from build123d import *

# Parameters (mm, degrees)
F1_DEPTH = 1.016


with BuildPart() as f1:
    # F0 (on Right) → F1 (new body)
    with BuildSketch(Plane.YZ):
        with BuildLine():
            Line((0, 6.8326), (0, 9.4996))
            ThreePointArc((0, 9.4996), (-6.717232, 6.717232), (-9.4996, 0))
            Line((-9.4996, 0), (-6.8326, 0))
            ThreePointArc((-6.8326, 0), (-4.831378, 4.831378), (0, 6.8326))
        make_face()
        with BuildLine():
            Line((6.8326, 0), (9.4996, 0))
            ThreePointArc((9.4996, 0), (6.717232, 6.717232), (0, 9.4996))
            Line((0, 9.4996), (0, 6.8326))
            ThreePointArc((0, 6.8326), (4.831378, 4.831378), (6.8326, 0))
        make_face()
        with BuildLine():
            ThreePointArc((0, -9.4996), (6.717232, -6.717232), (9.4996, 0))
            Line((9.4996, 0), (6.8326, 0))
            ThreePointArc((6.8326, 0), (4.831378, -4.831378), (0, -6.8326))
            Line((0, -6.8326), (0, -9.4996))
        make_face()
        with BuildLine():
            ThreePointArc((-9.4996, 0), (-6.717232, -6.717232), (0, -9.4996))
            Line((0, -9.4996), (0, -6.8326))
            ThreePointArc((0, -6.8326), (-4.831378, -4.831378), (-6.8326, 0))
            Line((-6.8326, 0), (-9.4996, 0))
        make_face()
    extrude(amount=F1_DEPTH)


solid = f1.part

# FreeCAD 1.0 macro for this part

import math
import FreeCAD as App
import Part
import Sketcher

V = App.Vector
Q = App.Units.Quantity

doc = App.newDocument("Part")
params = doc.addObject("Spreadsheet::Sheet", "Params")
for row, (alias, value) in enumerate([
    ("sketch1_radius", "0.3739999 in"),
    ("sketch1_radius2", "0.269 in"),
    ("pad1_length", "0.04 in"),
], start=1):
    params.set(f"A{row}", alias)
    params.set(f"B{row}", "=" + value)
    params.setAlias(f"B{row}", alias)

body = doc.addObject("PartDesign::Body", "Body")

sketch1 = body.newObject("Sketcher::SketchObject", "Sketch")
sketch1.AttachmentSupport = (doc.getObject("YZ_Plane"), [""])
sketch1.MapMode = "FlatFace"
sketch1.addGeometry([
    Part.ArcOfCircle(Part.Circle(V(-0.000001, 0.000001, 0), V(0, 0, 1), 9.499599), math.radians(89.999991), math.radians(180.000009)),
    Part.ArcOfCircle(Part.Circle(V(-0.000001, -0.000001, 0), V(0, 0, 1), 9.499599), math.radians(179.999991), math.radians(270.000009)),
    Part.ArcOfCircle(Part.Circle(V(0.000001, -0.000001, 0), V(0, 0, 1), 9.499599), math.radians(-90.000009), math.radians(0.000009)),
    Part.ArcOfCircle(Part.Circle(V(0.000001, 0.000001, 0), V(0, 0, 1), 9.499599), math.radians(-0.000009), math.radians(90.000009)),
    Part.ArcOfCircle(Part.Circle(V(-0.000001, 0.000001, 0), V(0, 0, 1), 6.832599), math.radians(89.999994), math.radians(180.000006)),
    Part.ArcOfCircle(Part.Circle(V(0.000001, 0.000001, 0), V(0, 0, 1), 6.832599), math.radians(-0.000006), math.radians(90.000006)),
    Part.ArcOfCircle(Part.Circle(V(0.000001, -0.000001, 0), V(0, 0, 1), 6.832599), math.radians(-90.000006), math.radians(0.000006)),
    Part.ArcOfCircle(Part.Circle(V(-0.000001, -0.000001, 0), V(0, 0, 1), 6.832599), math.radians(179.999994), math.radians(270.000006)),
], False)
sketch1.addConstraint([
    Sketcher.Constraint("Tangent", 0, 2, 1, 1),
    Sketcher.Constraint("Tangent", 1, 2, 2, 1),
    Sketcher.Constraint("Tangent", 2, 2, 3, 1),
    Sketcher.Constraint("Tangent", 3, 2, 0, 1),
    Sketcher.Constraint("Tangent", 4, 1, 5, 2),
    Sketcher.Constraint("Tangent", 5, 1, 6, 2),
    Sketcher.Constraint("Tangent", 6, 1, 7, 2),
    Sketcher.Constraint("Tangent", 7, 1, 4, 2),
    Sketcher.Constraint("Coincident", 0, 3, -1, 1),
    Sketcher.Constraint("Coincident", 4, 3, -1, 1),
    Sketcher.Constraint("Equal", 0, 1),
    Sketcher.Constraint("Equal", 4, 5),
    Sketcher.Constraint("PointOnObject", 0, 2, -1),
    Sketcher.Constraint("PointOnObject", 1, 2, -2),
    Sketcher.Constraint("PointOnObject", 2, 2, -1),
    Sketcher.Constraint("PointOnObject", 3, 2, -2),
    Sketcher.Constraint("PointOnObject", 4, 1, -2),
    Sketcher.Constraint("PointOnObject", 5, 1, -1),
    Sketcher.Constraint("PointOnObject", 6, 1, -2),
    Sketcher.Constraint("PointOnObject", 7, 1, -1),
    Sketcher.Constraint("Radius", 0, Q("0.3739999 in")),
    Sketcher.Constraint("Radius", 4, Q("0.269 in")),
])
sketch1.setExpression("Constraints[20]", "Params.sketch1_radius")
sketch1.setExpression("Constraints[21]", "Params.sketch1_radius2")
pad1 = body.newObject("PartDesign::Pad", "Pad")
pad1.Profile = sketch1
pad1.setExpression("Length", "Params.pad1_length")

doc.recompute()
